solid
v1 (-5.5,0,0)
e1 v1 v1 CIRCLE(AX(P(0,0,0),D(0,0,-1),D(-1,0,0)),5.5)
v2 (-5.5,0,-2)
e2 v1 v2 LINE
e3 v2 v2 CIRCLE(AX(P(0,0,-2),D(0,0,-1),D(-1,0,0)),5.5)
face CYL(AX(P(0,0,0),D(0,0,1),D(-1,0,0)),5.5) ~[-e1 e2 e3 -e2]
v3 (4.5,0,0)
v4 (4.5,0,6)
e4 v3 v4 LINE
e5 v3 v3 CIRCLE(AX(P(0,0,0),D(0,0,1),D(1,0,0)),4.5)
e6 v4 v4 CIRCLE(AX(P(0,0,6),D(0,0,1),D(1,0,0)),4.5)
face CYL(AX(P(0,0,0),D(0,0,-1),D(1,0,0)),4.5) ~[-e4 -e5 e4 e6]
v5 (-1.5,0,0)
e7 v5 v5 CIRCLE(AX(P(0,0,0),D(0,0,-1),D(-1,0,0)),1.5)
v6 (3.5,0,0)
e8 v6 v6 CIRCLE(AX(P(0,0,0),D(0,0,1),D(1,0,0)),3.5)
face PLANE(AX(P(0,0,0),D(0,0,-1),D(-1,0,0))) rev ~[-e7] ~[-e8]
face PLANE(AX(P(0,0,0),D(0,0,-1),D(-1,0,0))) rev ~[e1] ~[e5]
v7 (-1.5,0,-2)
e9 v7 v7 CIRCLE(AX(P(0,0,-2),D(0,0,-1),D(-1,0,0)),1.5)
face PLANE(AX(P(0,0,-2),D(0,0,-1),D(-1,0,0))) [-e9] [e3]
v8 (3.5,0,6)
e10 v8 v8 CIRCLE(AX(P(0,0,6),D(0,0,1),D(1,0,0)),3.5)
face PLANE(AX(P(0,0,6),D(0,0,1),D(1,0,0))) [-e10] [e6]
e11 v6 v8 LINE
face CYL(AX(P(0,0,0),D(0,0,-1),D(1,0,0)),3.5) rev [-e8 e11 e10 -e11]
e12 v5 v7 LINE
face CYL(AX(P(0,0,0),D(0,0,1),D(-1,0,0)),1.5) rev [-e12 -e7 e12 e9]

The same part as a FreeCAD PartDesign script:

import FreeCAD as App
import Part
import Sketcher

doc = App.newDocument("Part")
body = doc.addObject("PartDesign::Body", "Body")

sketch1 = body.newObject("Sketcher::SketchObject", "Sketch")
sketch1.AttachmentSupport = (doc.getObject("XY_Plane"), [""])
sketch1.MapMode = "FlatFace"
sketch1.addGeometry(Part.Circle(App.Vector(0, 0, 0), App.Vector(0, 0, 1), 4.5), False)
sketch1.addGeometry(Part.Circle(App.Vector(0, 0, 0), App.Vector(0, 0, 1), 3.5), False)
sketch1.addConstraint(Sketcher.Constraint("Coincident", 0, 3, -1, 1))
sketch1.addConstraint(Sketcher.Constraint("Coincident", 1, 3, -1, 1))
sketch1.addConstraint(Sketcher.Constraint("Diameter", 0, 9.0))
sketch1.addConstraint(Sketcher.Constraint("Diameter", 1, 7.0))
pad1 = body.newObject("PartDesign::Pad", "Pad")
pad1.Profile = sketch1
pad1.Length = 6

sketch2 = body.newObject("Sketcher::SketchObject", "Sketch001")
sketch2.AttachmentSupport = (doc.getObject("XY_Plane"), [""])
sketch2.MapMode = "FlatFace"
sketch2.addGeometry(Part.Circle(App.Vector(0, 0, 0), App.Vector(0, 0, 1), 5.5), False)
sketch2.addGeometry(Part.Circle(App.Vector(0, 0, 0), App.Vector(0, 0, 1), 1.5), False)
sketch2.addConstraint(Sketcher.Constraint("Coincident", 0, 3, -1, 1))
sketch2.addConstraint(Sketcher.Constraint("Coincident", 1, 3, -1, 1))
sketch2.addConstraint(Sketcher.Constraint("Diameter", 0, 11.0))
sketch2.addConstraint(Sketcher.Constraint("Diameter", 1, 3.0))
pad2 = body.newObject("PartDesign::Pad", "Pad001")
pad2.Profile = sketch2
pad2.Length = 2
pad2.Reversed = True

doc.recompute()
